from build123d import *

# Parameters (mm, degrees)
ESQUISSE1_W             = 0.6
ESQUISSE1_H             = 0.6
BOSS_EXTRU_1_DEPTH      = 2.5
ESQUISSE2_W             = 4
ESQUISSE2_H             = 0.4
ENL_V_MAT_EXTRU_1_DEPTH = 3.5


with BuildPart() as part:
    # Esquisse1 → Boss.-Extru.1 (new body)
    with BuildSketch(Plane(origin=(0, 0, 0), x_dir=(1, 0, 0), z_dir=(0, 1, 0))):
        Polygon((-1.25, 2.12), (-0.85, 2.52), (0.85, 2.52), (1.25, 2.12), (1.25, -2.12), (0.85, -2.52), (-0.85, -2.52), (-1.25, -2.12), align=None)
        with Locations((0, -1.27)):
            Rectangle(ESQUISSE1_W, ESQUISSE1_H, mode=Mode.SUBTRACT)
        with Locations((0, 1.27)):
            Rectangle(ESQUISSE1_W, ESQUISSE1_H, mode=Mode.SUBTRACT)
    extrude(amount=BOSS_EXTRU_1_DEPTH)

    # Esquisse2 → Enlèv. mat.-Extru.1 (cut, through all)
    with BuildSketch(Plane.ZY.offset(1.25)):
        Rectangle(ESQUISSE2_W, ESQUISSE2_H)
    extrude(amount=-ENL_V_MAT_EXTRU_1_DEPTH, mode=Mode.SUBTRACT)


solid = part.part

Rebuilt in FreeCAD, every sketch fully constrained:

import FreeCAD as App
import Part
import Sketcher
from FreeCAD import Vector
Q = App.Units.Quantity


def add_polygon(sketch, points):
    """Adds a closed chain of lines whose ends are joined by coincident constraints."""
    first, n = sketch.GeometryCount, len(points)
    for a, b in zip(points, points[1:] + points[:1]):
        sketch.addGeometry(Part.LineSegment(App.Vector(*a, 0), App.Vector(*b, 0)), False)
    for i in range(n):
        sketch.addConstraint(Sketcher.Constraint("Coincident", first + i, 2, first + (i + 1) % n, 1))

doc = App.newDocument("Part")
body = doc.addObject("PartDesign::Body", "Body")

sketch1 = body.newObject("Sketcher::SketchObject", "Sketch")
sketch1.AttachmentSupport = (doc.getObject("XZ_Plane"), [""])
sketch1.MapMode = "FlatFace"
add_polygon(sketch1, [(-0.8, -2.5), (-1.2, -2.1), (-1.2, 2.1), (-0.8, 2.5), (0.8, 2.5), (1.2, 2.1), (1.2, -2.1), (0.8, -2.5)])
add_polygon(sketch1, [(-0.3, 1.6), (-0.3, 1), (0.3, 1), (0.3, 1.6)])
add_polygon(sketch1, [(-0.3, -1), (-0.3, -1.6), (0.3, -1.6), (0.3, -1)])
sketch1.addConstraint([
    Sketcher.Constraint("Vertical", 1),
    Sketcher.Constraint("Horizontal", 3),
    Sketcher.Constraint("Vertical", 5),
    Sketcher.Constraint("Horizontal", 7),
    Sketcher.Constraint("Vertical", 8),
    Sketcher.Constraint("Horizontal", 9),
    Sketcher.Constraint("Vertical", 10),
    Sketcher.Constraint("Horizontal", 11),
    Sketcher.Constraint("Vertical", 12),
    Sketcher.Constraint("Horizontal", 13),
    Sketcher.Constraint("Vertical", 14),
    Sketcher.Constraint("Horizontal", 15),
    Sketcher.Constraint("Symmetric", 0, 2, 4, 2, -1, 1),
    Sketcher.Constraint("Symmetric", 2, 2, 6, 2, -1, 1),
    Sketcher.Constraint("Symmetric", 10, 2, 12, 2, -1, 1),
    Sketcher.Constraint("Symmetric", 8, 2, 14, 2, -1, 1),
    Sketcher.Constraint("Perpendicular", 0, 2),
    Sketcher.Constraint("Perpendicular", 2, 4),
    Sketcher.Constraint("Perpendicular", 4, 6),
    Sketcher.Constraint("Horizontal", 1, 2, 4, 2),
    Sketcher.Constraint("Vertical", 3, 2, 6, 2),
    Sketcher.Constraint("Vertical", 11, 2, 12, 2),
    Sketcher.Constraint("Equal", 15, 8),
    Sketcher.Constraint("DistanceX", 3, 1, 3, 2, Q("1.7 mm")),
    Sketcher.Constraint("DistanceX", 9, 1, 9, 2, Q("0.6 mm")),
    Sketcher.Constraint("DistanceY", 1, 1, 1, 2, Q("4.24 mm")),
    Sketcher.Constraint("DistanceX", 1, 2, 2, 2, Q("0.4 mm")),
    Sketcher.Constraint("DistanceY", -1, 1, 8, 2, Q("0.97 mm")),
])
pad1 = body.newObject("PartDesign::Pad", "Pad")
pad1.Profile = sketch1
pad1.Length = 2.5
pad1.Reversed = True

sketch2 = body.newObject("Sketcher::SketchObject", "Sketch001")
sketch2.AttachmentSupport = (doc.getObject("YZ_Plane"), [""])
sketch2.MapMode = "FlatFace"
sketch2.AttachmentOffset = App.Placement(Vector(0, 0, -1.25), App.Rotation())
add_polygon(sketch2, [(0.2, -2), (-0.2, -2), (-0.2, 2), (0.2, 2)])
sketch2.addConstraint([
    Sketcher.Constraint("Horizontal", 0),
    Sketcher.Constraint("Vertical", 1),
    Sketcher.Constraint("Horizontal", 2),
    Sketcher.Constraint("Vertical", 3),
    Sketcher.Constraint("Symmetric", 0, 2, 2, 2, -1, 1),
    Sketcher.Constraint("DistanceY", 1, 1, 1, 2, Q("4 mm")),
    Sketcher.Constraint("DistanceX", 0, 2, 0, 1, Q("0.4 mm")),
])
pocket1 = body.newObject("PartDesign::Pocket", "Pocket")
pocket1.Profile = sketch2
pocket1.Type = "ThroughAll"
pocket1.Reversed = True

doc.recompute()
